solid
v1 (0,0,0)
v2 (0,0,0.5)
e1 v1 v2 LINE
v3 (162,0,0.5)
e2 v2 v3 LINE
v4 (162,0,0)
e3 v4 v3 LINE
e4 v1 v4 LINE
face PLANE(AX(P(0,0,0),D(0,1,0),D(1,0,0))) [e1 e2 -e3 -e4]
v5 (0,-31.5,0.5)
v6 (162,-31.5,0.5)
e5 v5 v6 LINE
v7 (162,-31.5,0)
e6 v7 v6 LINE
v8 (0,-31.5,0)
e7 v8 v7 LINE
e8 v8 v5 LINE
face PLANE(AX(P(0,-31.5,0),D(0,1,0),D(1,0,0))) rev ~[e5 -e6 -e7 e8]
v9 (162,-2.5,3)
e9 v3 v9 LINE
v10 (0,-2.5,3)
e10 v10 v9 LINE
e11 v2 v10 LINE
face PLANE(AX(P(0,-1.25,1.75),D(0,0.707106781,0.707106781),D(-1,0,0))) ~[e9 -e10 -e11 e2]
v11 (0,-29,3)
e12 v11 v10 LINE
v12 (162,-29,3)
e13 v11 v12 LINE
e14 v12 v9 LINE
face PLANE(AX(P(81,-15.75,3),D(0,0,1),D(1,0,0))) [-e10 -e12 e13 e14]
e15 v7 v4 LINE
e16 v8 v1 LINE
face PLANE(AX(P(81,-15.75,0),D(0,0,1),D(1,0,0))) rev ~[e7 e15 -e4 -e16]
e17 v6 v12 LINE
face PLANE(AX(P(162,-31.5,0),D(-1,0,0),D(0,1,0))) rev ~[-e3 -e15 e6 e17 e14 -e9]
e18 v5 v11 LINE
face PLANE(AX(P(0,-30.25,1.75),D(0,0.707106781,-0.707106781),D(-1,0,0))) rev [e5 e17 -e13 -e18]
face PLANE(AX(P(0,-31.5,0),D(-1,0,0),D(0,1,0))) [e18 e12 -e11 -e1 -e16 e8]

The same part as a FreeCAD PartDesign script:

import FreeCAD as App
import Part
import Sketcher

V = App.Vector
Q = App.Units.Quantity


def edges_at(feature, points):
    """Names of the edges that pass closest to the given points."""
    edges = feature.Shape.Edges
    near = lambda p: min(range(len(edges)), key=lambda i: edges[i].distToShape(Part.Vertex(*p))[0])
    return sorted({f"Edge{near(p) + 1}" for p in points})


def add_polygon(sketch, points):
    """Adds a closed chain of lines whose ends are joined by coincident constraints."""
    first, n = sketch.GeometryCount, len(points)
    for a, b in zip(points, points[1:] + points[:1]):
        sketch.addGeometry(Part.LineSegment(App.Vector(*a, 0), App.Vector(*b, 0)), False)
    for i in range(n):
        sketch.addConstraint(Sketcher.Constraint("Coincident", first + i, 2, first + (i + 1) % n, 1))

doc = App.newDocument("Part")
body = doc.addObject("PartDesign::Body", "Body")

# Sketch on XY plane
sketch1 = doc.addObject("Sketcher::SketchObject", "Sketch")
body.addObject(sketch1)
sketch1.AttachmentSupport = (doc.XY_Plane, [""])
sketch1.MapMode = "FlatFace"
add_polygon(sketch1, [(0, 0), (0, -32), (162, -32), (162, 0)])  # lines 0-3
sketch1.addConstraint([
    Sketcher.Constraint("Vertical", 0),
    Sketcher.Constraint("Horizontal", 1),
    Sketcher.Constraint("Vertical", 2),
    Sketcher.Constraint("Horizontal", 3),
    Sketcher.Constraint("Coincident", 3, 2, -1, 1),
    Sketcher.Constraint("DistanceX", 1, 1, 1, 2, Q("162 mm")),
    Sketcher.Constraint("DistanceY", 0, 2, 0, 1, Q("31.5 mm")),
])
pad1 = doc.addObject("PartDesign::Pad", "Pad")
body.addObject(pad1)
pad1.Profile = sketch1
pad1.Length = 3
doc.recompute()

chamfer = doc.addObject("PartDesign::Chamfer", "Chamfer")
body.addObject(chamfer)
chamfer.Base = (pad1, edges_at(pad1, [(81, -31.5, 3), (81, 0, 3)]))
chamfer.Size = 2.5

doc.recompute()
